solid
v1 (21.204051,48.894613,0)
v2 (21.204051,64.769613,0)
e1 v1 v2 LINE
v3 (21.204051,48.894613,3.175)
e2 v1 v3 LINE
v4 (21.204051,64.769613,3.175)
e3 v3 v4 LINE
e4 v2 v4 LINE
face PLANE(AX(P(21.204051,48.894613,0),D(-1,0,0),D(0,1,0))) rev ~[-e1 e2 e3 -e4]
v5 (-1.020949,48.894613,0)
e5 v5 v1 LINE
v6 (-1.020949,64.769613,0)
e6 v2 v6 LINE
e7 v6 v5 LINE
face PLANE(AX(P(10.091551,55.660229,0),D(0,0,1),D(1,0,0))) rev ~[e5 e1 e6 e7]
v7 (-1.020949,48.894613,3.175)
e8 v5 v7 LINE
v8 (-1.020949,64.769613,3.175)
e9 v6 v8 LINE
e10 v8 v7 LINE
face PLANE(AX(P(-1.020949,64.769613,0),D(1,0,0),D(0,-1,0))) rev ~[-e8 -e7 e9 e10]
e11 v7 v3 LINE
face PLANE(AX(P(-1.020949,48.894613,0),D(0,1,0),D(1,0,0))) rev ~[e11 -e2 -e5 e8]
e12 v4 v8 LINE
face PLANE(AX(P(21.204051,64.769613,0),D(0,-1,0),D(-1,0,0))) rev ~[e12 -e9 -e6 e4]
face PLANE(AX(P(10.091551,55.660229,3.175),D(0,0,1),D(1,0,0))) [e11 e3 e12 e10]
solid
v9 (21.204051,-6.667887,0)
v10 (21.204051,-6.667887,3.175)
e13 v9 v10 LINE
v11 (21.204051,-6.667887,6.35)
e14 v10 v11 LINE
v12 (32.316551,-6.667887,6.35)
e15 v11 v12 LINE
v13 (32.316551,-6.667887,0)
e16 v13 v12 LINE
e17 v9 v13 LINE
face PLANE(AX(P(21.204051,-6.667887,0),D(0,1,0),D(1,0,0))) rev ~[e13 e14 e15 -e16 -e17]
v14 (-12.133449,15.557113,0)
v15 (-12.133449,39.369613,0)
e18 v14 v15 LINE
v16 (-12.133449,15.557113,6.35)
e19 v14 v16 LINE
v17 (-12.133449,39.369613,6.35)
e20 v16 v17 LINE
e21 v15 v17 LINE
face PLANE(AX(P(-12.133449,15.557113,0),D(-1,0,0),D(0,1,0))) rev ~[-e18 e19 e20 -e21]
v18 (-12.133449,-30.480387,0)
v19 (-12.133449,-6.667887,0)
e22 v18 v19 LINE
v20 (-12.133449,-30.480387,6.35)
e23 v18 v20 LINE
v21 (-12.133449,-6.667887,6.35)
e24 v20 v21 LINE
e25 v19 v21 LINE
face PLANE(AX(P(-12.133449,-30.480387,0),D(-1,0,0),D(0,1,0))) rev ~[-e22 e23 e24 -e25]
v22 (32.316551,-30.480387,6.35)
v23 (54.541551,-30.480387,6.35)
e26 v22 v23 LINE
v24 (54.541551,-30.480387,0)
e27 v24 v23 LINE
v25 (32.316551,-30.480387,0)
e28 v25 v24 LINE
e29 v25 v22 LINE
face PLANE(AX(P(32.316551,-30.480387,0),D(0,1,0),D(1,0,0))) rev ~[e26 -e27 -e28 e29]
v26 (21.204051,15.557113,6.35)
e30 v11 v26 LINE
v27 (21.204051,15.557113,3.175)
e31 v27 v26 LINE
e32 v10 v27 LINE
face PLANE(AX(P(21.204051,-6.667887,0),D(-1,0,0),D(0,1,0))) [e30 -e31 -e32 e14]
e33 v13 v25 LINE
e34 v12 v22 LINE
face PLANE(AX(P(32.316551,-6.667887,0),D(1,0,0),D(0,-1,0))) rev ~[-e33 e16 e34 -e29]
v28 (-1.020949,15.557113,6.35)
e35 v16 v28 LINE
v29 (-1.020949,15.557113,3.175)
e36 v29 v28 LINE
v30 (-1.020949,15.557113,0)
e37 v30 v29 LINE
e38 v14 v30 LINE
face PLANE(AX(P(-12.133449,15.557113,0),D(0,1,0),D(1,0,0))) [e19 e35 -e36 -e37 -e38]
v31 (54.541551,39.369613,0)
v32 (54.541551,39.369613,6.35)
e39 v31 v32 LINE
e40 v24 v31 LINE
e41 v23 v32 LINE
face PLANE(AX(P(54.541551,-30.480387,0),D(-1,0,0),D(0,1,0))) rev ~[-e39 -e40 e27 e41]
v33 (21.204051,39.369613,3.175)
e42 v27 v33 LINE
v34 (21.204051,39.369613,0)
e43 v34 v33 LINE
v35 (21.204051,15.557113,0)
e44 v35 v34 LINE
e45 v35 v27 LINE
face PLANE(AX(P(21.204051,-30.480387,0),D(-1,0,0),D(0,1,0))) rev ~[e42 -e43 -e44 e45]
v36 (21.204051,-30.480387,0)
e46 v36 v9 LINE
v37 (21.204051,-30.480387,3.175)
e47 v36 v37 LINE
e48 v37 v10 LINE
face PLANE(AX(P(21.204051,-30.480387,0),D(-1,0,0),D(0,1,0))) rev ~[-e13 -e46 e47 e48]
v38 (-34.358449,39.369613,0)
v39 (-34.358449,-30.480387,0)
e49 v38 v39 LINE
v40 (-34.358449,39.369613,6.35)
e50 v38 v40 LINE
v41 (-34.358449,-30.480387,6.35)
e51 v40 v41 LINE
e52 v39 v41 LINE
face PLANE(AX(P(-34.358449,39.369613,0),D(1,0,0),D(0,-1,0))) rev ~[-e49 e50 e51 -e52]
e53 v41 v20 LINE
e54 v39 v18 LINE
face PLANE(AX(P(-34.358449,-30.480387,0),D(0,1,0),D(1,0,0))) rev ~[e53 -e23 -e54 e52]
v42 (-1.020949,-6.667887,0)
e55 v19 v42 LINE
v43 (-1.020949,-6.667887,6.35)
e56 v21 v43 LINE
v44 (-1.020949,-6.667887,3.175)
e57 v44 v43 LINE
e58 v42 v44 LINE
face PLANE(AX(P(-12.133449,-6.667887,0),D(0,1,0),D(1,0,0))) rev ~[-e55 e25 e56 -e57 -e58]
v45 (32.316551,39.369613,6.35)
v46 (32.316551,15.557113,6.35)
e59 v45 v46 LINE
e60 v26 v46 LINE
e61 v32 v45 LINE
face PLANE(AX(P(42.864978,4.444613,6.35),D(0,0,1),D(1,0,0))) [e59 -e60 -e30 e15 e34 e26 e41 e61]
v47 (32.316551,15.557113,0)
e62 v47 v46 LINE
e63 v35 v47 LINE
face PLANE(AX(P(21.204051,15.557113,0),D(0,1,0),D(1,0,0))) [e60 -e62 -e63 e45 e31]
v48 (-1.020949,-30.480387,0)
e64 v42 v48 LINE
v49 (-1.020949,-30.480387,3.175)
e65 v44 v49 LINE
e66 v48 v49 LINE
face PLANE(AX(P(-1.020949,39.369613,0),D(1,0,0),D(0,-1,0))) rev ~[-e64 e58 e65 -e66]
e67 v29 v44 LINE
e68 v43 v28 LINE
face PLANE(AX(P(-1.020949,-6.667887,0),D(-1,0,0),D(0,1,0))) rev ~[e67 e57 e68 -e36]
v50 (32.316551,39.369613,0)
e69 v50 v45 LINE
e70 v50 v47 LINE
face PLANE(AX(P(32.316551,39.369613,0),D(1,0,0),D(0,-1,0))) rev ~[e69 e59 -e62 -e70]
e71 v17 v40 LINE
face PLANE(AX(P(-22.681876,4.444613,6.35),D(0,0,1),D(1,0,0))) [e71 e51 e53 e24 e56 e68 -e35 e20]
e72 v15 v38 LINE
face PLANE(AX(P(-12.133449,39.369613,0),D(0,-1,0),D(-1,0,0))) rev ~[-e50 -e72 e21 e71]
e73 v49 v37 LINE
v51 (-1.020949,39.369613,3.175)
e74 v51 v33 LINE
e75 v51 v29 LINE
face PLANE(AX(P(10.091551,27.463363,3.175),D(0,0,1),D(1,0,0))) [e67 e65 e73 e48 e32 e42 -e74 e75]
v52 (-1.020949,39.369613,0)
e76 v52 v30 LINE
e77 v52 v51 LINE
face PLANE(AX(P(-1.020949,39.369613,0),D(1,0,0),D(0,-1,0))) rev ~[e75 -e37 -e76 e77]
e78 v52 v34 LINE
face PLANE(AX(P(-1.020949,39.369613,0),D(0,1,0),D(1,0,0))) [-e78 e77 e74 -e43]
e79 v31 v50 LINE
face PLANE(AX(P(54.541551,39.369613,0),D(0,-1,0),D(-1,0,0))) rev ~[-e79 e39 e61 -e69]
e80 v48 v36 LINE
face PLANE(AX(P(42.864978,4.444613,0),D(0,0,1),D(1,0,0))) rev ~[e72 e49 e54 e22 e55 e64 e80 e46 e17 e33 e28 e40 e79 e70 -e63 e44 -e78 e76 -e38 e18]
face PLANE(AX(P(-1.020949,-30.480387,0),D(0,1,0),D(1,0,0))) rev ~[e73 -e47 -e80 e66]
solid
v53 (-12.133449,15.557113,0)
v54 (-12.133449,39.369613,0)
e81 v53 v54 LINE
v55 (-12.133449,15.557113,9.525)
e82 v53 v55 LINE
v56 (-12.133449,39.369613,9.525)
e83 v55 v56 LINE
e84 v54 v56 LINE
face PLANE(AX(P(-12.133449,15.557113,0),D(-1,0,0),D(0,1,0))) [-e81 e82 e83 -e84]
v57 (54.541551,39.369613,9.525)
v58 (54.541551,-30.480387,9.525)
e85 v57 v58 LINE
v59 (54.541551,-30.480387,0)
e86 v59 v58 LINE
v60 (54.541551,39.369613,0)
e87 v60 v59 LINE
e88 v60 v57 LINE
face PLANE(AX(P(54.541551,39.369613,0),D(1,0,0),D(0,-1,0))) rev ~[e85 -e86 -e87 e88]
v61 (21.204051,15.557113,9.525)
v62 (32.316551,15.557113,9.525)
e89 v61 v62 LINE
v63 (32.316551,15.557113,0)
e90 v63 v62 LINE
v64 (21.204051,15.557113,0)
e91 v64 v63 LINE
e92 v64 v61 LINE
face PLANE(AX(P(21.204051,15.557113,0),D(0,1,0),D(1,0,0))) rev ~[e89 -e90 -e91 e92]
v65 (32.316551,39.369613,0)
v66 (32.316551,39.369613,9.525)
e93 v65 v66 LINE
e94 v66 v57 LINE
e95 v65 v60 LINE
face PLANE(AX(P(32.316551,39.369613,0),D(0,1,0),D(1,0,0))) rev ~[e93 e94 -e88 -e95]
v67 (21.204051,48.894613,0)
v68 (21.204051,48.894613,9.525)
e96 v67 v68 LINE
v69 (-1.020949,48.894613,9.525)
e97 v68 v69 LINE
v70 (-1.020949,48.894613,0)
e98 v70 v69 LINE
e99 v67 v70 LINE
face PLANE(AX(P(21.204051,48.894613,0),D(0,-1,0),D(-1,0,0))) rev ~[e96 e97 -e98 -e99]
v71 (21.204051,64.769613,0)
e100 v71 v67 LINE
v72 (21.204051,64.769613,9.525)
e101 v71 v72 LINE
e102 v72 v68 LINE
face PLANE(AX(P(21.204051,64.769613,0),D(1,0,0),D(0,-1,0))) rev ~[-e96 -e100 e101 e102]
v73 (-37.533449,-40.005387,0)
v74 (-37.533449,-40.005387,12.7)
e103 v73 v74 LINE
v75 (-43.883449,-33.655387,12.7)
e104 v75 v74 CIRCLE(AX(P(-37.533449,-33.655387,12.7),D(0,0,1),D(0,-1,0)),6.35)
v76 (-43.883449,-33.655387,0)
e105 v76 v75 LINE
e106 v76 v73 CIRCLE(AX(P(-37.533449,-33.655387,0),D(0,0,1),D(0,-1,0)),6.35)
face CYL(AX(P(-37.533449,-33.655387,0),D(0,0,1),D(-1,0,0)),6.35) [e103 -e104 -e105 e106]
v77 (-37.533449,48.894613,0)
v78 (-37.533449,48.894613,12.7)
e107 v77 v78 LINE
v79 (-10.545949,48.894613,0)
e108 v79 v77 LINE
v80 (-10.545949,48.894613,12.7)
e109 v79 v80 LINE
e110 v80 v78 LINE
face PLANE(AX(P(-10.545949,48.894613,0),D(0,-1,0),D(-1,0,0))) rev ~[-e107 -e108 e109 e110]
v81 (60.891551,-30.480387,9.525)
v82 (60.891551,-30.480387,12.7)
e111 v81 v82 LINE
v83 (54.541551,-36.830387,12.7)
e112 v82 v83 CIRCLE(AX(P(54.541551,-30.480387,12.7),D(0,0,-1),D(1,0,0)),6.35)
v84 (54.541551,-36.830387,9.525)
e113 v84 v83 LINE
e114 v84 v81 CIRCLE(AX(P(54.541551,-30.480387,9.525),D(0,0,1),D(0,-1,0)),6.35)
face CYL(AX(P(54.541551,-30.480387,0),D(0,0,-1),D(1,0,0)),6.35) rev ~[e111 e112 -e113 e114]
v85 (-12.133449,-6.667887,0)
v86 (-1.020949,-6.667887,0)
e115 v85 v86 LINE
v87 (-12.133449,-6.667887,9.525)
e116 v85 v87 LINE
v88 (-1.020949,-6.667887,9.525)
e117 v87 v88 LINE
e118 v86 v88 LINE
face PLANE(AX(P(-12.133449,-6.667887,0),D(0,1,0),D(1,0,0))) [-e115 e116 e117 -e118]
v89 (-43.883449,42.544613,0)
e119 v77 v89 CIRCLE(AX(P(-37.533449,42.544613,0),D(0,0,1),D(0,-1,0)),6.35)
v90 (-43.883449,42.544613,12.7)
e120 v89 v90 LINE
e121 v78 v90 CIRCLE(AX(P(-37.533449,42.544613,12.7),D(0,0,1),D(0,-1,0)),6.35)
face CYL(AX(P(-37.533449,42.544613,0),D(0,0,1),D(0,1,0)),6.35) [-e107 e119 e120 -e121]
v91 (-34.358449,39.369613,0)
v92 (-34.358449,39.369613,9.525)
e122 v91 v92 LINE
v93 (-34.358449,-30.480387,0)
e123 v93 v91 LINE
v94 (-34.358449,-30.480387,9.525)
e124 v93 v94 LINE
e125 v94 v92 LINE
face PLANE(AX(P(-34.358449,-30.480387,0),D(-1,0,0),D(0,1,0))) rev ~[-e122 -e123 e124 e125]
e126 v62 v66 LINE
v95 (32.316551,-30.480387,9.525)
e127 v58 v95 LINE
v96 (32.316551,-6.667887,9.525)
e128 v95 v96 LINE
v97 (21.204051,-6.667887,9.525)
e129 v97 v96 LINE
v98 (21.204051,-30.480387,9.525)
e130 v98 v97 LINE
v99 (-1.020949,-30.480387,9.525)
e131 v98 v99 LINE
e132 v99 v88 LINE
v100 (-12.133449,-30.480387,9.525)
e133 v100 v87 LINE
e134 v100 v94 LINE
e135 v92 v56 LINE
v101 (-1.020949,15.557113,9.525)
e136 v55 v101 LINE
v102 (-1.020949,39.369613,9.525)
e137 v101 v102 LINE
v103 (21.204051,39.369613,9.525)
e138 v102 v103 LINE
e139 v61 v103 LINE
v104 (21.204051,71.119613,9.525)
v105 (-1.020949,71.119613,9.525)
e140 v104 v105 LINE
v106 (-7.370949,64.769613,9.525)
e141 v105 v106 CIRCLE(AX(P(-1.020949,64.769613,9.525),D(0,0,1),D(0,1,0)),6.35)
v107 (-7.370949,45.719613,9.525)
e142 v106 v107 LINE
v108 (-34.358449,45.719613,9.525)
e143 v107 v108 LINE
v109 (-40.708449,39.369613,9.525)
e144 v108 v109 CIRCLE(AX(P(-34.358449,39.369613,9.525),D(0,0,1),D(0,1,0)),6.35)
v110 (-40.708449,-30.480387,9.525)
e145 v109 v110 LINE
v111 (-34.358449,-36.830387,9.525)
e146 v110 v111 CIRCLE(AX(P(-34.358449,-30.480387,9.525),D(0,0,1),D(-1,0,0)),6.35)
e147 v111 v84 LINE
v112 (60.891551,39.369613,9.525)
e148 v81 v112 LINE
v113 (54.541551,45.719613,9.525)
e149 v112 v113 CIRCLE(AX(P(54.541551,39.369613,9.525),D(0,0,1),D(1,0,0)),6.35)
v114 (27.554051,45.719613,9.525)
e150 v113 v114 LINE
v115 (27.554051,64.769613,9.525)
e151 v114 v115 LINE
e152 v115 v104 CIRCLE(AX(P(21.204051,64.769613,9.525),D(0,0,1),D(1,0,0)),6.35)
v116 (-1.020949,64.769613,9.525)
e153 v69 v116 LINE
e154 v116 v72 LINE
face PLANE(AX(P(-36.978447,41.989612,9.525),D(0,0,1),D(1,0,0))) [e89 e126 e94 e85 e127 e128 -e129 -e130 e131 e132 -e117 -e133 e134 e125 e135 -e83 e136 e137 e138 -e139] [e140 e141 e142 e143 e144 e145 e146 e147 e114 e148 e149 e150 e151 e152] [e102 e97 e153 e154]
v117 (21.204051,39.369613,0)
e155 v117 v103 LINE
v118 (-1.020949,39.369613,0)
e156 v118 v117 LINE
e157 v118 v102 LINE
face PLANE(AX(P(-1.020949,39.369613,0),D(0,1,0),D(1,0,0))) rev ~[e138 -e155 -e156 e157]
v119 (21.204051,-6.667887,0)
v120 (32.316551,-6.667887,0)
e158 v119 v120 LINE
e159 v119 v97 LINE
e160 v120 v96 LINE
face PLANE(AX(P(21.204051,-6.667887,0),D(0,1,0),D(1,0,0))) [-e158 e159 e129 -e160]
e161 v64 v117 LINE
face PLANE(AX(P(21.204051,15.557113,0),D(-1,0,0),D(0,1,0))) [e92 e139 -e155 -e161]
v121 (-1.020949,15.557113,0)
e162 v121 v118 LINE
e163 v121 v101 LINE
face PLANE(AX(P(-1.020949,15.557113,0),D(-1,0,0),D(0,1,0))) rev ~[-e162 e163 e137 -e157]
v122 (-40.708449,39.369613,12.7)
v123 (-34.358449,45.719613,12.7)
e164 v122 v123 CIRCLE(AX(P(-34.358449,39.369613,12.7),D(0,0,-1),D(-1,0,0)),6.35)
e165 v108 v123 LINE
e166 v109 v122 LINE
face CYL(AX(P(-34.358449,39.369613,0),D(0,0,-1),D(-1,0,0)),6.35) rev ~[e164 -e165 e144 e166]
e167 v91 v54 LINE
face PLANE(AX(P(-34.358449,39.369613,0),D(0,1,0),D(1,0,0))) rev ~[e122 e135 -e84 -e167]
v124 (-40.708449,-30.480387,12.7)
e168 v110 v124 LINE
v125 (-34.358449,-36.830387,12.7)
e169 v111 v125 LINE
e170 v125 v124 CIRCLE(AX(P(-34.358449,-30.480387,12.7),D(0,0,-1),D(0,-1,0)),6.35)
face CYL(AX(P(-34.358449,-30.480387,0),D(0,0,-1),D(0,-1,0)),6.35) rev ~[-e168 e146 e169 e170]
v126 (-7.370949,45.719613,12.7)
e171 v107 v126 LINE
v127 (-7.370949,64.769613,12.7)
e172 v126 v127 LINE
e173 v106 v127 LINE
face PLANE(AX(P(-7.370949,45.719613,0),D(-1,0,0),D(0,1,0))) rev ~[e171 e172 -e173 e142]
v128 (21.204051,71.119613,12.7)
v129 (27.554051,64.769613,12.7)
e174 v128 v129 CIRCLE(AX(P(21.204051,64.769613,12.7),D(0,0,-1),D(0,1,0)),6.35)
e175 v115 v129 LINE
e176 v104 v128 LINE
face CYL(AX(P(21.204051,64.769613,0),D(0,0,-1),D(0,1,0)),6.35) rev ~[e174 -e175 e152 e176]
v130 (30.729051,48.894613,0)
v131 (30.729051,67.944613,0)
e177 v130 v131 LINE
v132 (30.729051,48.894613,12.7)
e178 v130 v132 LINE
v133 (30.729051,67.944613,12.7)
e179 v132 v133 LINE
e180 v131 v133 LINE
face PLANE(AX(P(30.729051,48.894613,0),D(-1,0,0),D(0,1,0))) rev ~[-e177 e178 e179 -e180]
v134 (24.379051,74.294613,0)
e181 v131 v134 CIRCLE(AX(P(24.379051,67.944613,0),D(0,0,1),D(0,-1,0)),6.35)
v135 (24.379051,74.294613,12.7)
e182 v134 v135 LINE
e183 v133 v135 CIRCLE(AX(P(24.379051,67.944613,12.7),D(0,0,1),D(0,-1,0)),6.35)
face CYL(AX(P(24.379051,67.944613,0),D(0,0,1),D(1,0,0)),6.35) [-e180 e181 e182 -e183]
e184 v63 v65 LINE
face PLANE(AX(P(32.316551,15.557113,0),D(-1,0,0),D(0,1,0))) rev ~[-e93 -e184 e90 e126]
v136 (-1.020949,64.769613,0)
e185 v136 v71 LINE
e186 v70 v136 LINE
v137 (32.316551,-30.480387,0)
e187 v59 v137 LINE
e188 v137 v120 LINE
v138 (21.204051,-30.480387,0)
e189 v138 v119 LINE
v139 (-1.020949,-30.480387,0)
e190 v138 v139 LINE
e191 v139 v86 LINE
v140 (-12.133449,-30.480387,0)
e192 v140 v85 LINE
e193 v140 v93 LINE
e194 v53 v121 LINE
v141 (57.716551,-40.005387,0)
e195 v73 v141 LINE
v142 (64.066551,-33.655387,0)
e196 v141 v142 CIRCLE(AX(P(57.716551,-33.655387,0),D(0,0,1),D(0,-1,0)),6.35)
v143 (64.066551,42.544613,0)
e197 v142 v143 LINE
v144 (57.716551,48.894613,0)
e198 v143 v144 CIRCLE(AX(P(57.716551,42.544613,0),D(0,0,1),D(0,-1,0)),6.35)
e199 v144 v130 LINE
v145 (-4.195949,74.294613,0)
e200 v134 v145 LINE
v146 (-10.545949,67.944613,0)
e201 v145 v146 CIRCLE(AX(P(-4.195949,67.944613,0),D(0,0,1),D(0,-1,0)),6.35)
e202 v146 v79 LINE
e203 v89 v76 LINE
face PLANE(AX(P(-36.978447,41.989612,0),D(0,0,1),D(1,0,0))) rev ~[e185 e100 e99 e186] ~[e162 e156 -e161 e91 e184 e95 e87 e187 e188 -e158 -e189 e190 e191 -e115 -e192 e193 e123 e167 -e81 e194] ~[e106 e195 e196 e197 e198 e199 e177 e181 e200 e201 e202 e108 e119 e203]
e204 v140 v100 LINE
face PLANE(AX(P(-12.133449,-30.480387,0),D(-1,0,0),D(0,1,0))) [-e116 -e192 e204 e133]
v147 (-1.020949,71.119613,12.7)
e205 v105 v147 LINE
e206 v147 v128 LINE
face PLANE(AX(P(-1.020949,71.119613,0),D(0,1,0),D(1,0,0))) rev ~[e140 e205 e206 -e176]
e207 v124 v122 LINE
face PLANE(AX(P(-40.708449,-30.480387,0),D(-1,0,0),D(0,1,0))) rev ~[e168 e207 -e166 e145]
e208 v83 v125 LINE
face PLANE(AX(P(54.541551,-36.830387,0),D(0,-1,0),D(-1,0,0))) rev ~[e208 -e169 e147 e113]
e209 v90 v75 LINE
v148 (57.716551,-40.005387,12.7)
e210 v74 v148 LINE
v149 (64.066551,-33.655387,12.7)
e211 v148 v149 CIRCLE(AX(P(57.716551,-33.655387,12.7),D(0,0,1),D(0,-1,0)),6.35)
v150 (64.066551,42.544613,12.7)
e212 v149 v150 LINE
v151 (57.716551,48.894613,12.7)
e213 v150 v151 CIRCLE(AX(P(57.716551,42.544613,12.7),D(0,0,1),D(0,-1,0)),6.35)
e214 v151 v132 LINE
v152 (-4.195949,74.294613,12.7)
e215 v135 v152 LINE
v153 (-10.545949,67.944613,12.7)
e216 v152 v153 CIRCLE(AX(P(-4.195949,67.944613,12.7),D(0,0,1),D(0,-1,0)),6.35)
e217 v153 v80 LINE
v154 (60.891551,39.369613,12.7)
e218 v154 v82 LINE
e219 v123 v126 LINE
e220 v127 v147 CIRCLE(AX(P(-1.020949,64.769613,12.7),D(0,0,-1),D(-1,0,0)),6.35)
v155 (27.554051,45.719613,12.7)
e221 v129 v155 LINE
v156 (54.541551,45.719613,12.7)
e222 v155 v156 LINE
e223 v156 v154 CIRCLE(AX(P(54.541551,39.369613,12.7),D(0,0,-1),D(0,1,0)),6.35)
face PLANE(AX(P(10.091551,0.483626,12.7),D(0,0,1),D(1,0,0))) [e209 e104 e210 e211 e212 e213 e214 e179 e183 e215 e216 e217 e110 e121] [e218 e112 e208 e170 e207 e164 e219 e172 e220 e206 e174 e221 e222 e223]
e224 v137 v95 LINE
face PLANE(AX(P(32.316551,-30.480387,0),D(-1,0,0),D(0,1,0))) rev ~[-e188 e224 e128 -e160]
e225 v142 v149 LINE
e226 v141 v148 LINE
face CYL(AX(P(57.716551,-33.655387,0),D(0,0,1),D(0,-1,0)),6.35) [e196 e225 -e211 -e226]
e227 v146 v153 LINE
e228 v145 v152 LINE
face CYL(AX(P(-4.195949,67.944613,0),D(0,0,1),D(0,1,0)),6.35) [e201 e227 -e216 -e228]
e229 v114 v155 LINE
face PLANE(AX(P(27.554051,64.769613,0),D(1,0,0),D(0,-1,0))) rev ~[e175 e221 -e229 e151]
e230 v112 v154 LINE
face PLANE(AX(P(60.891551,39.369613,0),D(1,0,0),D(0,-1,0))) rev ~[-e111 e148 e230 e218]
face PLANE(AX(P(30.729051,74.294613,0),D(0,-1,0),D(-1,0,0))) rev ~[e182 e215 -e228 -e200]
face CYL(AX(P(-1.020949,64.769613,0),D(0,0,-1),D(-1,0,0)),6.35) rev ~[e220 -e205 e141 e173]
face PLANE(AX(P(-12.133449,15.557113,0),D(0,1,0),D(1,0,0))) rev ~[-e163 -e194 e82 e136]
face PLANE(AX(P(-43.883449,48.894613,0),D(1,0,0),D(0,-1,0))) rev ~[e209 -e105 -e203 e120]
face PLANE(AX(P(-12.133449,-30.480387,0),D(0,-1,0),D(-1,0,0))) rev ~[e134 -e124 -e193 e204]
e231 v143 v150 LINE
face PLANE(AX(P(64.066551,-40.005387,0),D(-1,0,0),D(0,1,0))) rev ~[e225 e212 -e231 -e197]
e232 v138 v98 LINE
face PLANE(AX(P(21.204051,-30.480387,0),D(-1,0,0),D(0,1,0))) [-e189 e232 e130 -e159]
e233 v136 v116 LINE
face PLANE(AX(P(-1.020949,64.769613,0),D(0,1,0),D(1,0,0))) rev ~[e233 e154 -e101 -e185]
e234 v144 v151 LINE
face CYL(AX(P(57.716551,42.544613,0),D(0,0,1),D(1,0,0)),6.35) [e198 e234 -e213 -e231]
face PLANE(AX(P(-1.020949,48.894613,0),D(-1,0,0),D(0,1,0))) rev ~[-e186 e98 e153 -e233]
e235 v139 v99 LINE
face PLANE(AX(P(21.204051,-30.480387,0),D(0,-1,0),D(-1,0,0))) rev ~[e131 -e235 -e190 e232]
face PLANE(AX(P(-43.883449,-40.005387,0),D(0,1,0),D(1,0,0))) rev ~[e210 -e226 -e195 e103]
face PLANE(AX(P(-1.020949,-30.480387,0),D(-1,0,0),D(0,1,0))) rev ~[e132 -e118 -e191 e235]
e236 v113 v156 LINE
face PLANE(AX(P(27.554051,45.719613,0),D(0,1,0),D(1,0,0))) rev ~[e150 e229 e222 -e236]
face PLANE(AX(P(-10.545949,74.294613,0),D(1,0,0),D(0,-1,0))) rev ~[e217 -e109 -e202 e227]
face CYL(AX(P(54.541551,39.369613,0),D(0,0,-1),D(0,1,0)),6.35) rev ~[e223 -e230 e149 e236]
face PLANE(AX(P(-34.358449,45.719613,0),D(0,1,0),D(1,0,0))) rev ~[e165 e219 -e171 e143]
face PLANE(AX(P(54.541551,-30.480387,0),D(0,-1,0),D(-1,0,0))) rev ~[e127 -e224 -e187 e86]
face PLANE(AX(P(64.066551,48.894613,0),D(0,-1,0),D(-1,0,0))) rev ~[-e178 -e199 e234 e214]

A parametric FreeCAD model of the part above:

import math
import FreeCAD as App
import Part
import Sketcher
from FreeCAD import Vector
Q = App.Units.Quantity


def edges_at(feature, points):
    """Names of the edges that pass closest to the given points."""
    edges = feature.Shape.Edges
    near = lambda p: min(range(len(edges)), key=lambda i: edges[i].distToShape(Part.Vertex(*p))[0])
    return sorted({f"Edge{near(p) + 1}" for p in points})

doc = App.newDocument("Part")
params = doc.addObject("Spreadsheet::Sheet", "Params")
for row, (alias, value) in enumerate([
    ("sketch1_height", "2.75 in"),
    ("sketch1_width", "0.875 in"),
    ("pad1_length", "0.125 in"),
    ("sketch2_height", "2.75 in"),
    ("sketch2_width", "0.4375 in"),
    ("sketch2_width2", "0.875 in"),
    ("pad2_length", "0.25 in"),
    ("sketch3_width", "0.875 in"),
    ("sketch3_height", "0.625 in"),
    ("pad3_length", "0.125 in"),
    ("sketch4_radius", "0.25 in"),
    ("sketch4_width", "3.5 in"),
    ("sketch4_width2", "1.0625 in"),
    ("sketch4_height", "0.625 in"),
    ("sketch4_height2", "0.9375 in"),
    ("pad4_length", "0.375 in"),
    ("sketch5_height", "1 in"),
    ("sketch5_radius", "0.25 in"),
    ("sketch5_width", "3.5 in"),
    ("sketch5_width2", "4.25 in"),
    ("sketch5_width3", "1.3125 in"),
    ("pad5_length", "0.5 in"),
    ("fillet_radius", "0.25 in"),
], start=1):
    params.set(f"A{row}", alias)
    params.set(f"B{row}", "=" + value)
    params.setAlias(f"B{row}", alias)

body = doc.addObject("PartDesign::Body", "Body")

sketch1 = doc.addObject("Sketcher::SketchObject", "Sketch")
body.addObject(sketch1)
sketch1.AttachmentSupport = (doc.XY_Plane, [""])
sketch1.MapMode = "FlatFace"
sketch1.addGeometry([
    Part.LineSegment(Vector(-1, 39, 0), Vector(-1, -30, 0)),
    Part.LineSegment(Vector(-1, -30, 0), Vector(21, -30, 0)),
    Part.LineSegment(Vector(21, -30, 0), Vector(21, 39, 0)),
    Part.LineSegment(Vector(21, 39, 0), Vector(-1, 39, 0)),
], False)
sketch1.addConstraint([
    Sketcher.Constraint("Coincident", 0, 2, 1, 1),
    Sketcher.Constraint("Coincident", 1, 2, 2, 1),
    Sketcher.Constraint("Coincident", 2, 2, 3, 1),
    Sketcher.Constraint("Coincident", 3, 2, 0, 1),
    Sketcher.Constraint("Vertical", 0),
    Sketcher.Constraint("Horizontal", 1),
    Sketcher.Constraint("Vertical", 2),
    Sketcher.Constraint("Horizontal", 3),
    Sketcher.Constraint("DistanceY", 0, 2, 0, 1, Q("2.75 in")),
    Sketcher.Constraint("DistanceX", 1, 1, 1, 2, Q("0.875 in")),
    Sketcher.Constraint("DistanceX", 0, 2, -1, 1, Q("1.020949 mm")),
    Sketcher.Constraint("DistanceY", 0, 2, -1, 1, Q("30.480387 mm")),
])
sketch1.setExpression("Constraints[8]", "Params.sketch1_height")
sketch1.setExpression("Constraints[9]", "Params.sketch1_width")
pad1 = doc.addObject("PartDesign::Pad", "Pad")
body.addObject(pad1)
pad1.Profile = sketch1
pad1.setExpression("Length", "Params.pad1_length")

sketch2 = doc.addObject("Sketcher::SketchObject", "Sketch001")
body.addObject(sketch2)
sketch2.AttachmentSupport = (doc.XY_Plane, [""])
sketch2.MapMode = "FlatFace"
sketch2.addGeometry([
    Part.LineSegment(Vector(32, 39, 0), Vector(32, 16, 0)),
    Part.LineSegment(Vector(32, 16, 0), Vector(21, 16, 0)),
    Part.LineSegment(Vector(21, 16, 0), Vector(21, -7, 0)),
    Part.LineSegment(Vector(21, -7, 0), Vector(32, -7, 0)),
    Part.LineSegment(Vector(32, -7, 0), Vector(32, -30, 0)),
    Part.LineSegment(Vector(32, -30, 0), Vector(55, -30, 0)),
    Part.LineSegment(Vector(55, -30, 0), Vector(55, 39, 0)),
    Part.LineSegment(Vector(55, 39, 0), Vector(32, 39, 0)),
    Part.LineSegment(Vector(-12, 39, 0), Vector(-34, 39, 0)),
    Part.LineSegment(Vector(-34, 39, 0), Vector(-34, -30, 0)),
    Part.LineSegment(Vector(-34, -30, 0), Vector(-12, -30, 0)),
    Part.LineSegment(Vector(-12, -30, 0), Vector(-12, -7, 0)),
    Part.LineSegment(Vector(-12, -7, 0), Vector(-1, -7, 0)),
    Part.LineSegment(Vector(-1, -7, 0), Vector(-1, 16, 0)),
    Part.LineSegment(Vector(-1, 16, 0), Vector(-12, 16, 0)),
    Part.LineSegment(Vector(-12, 16, 0), Vector(-12, 39, 0)),
], False)
sketch2.addConstraint([
    Sketcher.Constraint("Coincident", 0, 2, 1, 1),
    Sketcher.Constraint("Coincident", 1, 2, 2, 1),
    Sketcher.Constraint("Coincident", 2, 2, 3, 1),
    Sketcher.Constraint("Coincident", 3, 2, 4, 1),
    Sketcher.Constraint("Coincident", 4, 2, 5, 1),
    Sketcher.Constraint("Coincident", 5, 2, 6, 1),
    Sketcher.Constraint("Coincident", 6, 2, 7, 1),
    Sketcher.Constraint("Coincident", 7, 2, 0, 1),
    Sketcher.Constraint("Coincident", 8, 2, 9, 1),
    Sketcher.Constraint("Coincident", 9, 2, 10, 1),
    Sketcher.Constraint("Coincident", 10, 2, 11, 1),
    Sketcher.Constraint("Coincident", 11, 2, 12, 1),
    Sketcher.Constraint("Coincident", 12, 2, 13, 1),
    Sketcher.Constraint("Coincident", 13, 2, 14, 1),
    Sketcher.Constraint("Coincident", 14, 2, 15, 1),
    Sketcher.Constraint("Coincident", 15, 2, 8, 1),
    Sketcher.Constraint("Vertical", 0),
    Sketcher.Constraint("Horizontal", 1),
    Sketcher.Constraint("Vertical", 2),
    Sketcher.Constraint("Horizontal", 3),
    Sketcher.Constraint("Vertical", 4),
    Sketcher.Constraint("Horizontal", 5),
    Sketcher.Constraint("Vertical", 6),
    Sketcher.Constraint("Horizontal", 7),
    Sketcher.Constraint("Horizontal", 8),
    Sketcher.Constraint("Vertical", 9),
    Sketcher.Constraint("Horizontal", 10),
    Sketcher.Constraint("Vertical", 11),
    Sketcher.Constraint("Horizontal", 12),
    Sketcher.Constraint("Vertical", 13),
    Sketcher.Constraint("Horizontal", 14),
    Sketcher.Constraint("Vertical", 15),
    Sketcher.Constraint("Horizontal", 7, 2, 8, 2),
    Sketcher.Constraint("Horizontal", 5, 2, 9, 2),
    Sketcher.Constraint("Horizontal", 3, 2, 11, 2),
    Sketcher.Constraint("Horizontal", 1, 2, 13, 2),
    Sketcher.Constraint("Vertical", 0, 2, 3, 2),
    Sketcher.Constraint("Vertical", 11, 2, 14, 2),
    Sketcher.Constraint("Equal", 7, 8),
    Sketcher.Constraint("Equal", 3, 12),
    Sketcher.Constraint("Equal", 10, 2),
    Sketcher.Constraint("Equal", 0, 4),
    Sketcher.Constraint("DistanceY", 6, 1, 6, 2, Q("2.75 in")),
    Sketcher.Constraint("DistanceX", 1, 2, 1, 1, Q("0.4375 in")),
    Sketcher.Constraint("DistanceX", 5, 1, 5, 2, Q("0.875 in")),
    Sketcher.Constraint("DistanceX", 10, 2, 4, 2, Q("1.75 in")),
    Sketcher.Constraint("DistanceX", -1, 1, 0, 2, Q("32.316551 mm")),
    Sketcher.Constraint("DistanceY", -1, 1, 0, 2, Q("15.557113 mm")),
])
sketch2.setExpression("Constraints[42]", "Params.sketch2_height")
sketch2.setExpression("Constraints[43]", "Params.sketch2_width")
sketch2.setExpression("Constraints[44]", "Params.sketch2_width2")
pad2 = doc.addObject("PartDesign::Pad", "Pad001")
body.addObject(pad2)
pad2.Profile = sketch2
pad2.setExpression("Length", "Params.pad2_length")
body2 = doc.addObject("PartDesign::Body", "Body001")

sketch3 = doc.addObject("Sketcher::SketchObject", "Sketch002")
body2.addObject(sketch3)
sketch3.AttachmentSupport = (doc.getObject("XY_Plane001"), [""])
sketch3.MapMode = "FlatFace"
sketch3.addGeometry([
    Part.LineSegment(Vector(-1, 49, 0), Vector(21, 49, 0)),
    Part.LineSegment(Vector(21, 49, 0), Vector(21, 65, 0)),
    Part.LineSegment(Vector(21, 65, 0), Vector(-1, 65, 0)),
    Part.LineSegment(Vector(-1, 65, 0), Vector(-1, 49, 0)),
], False)
sketch3.addConstraint([
    Sketcher.Constraint("Coincident", 0, 2, 1, 1),
    Sketcher.Constraint("Coincident", 1, 2, 2, 1),
    Sketcher.Constraint("Coincident", 2, 2, 3, 1),
    Sketcher.Constraint("Coincident", 3, 2, 0, 1),
    Sketcher.Constraint("Horizontal", 0),
    Sketcher.Constraint("Vertical", 1),
    Sketcher.Constraint("Horizontal", 2),
    Sketcher.Constraint("Vertical", 3),
    Sketcher.Constraint("DistanceX", 0, 1, 0, 2, Q("0.875 in")),
    Sketcher.Constraint("DistanceY", 1, 1, 1, 2, Q("0.625 in")),
    Sketcher.Constraint("DistanceX", -1, 1, 0, 2, Q("21.204051 mm")),
    Sketcher.Constraint("DistanceY", -1, 1, 0, 2, Q("48.894613 mm")),
])
sketch3.setExpression("Constraints[8]", "Params.sketch3_width")
sketch3.setExpression("Constraints[9]", "Params.sketch3_height")
pad3 = doc.addObject("PartDesign::Pad", "Pad002")
body2.addObject(pad3)
pad3.Profile = sketch3
pad3.setExpression("Length", "Params.pad3_length")
body3 = doc.addObject("PartDesign::Body", "Body002")

sketch4 = doc.addObject("Sketcher::SketchObject", "Sketch003")
body3.addObject(sketch4)
sketch4.AttachmentSupport = (doc.getObject("XY_Plane002"), [""])
sketch4.MapMode = "FlatFace"
sketch4.addGeometry([
    Part.ArcOfCircle(Part.Circle(Vector(-34, 39, 0), Vector(0, 0, 1), 6), math.radians(90), math.radians(180)),
    Part.LineSegment(Vector(-41, 39, 0), Vector(-41, -30, 0)),
    Part.ArcOfCircle(Part.Circle(Vector(-34, -30, 0), Vector(0, 0, 1), 6), math.radians(-180), math.radians(-90)),
    Part.LineSegment(Vector(-34, -37, 0), Vector(55, -37, 0)),
    Part.ArcOfCircle(Part.Circle(Vector(55, -30, 0), Vector(0, 0, 1), 6), math.radians(-90), math.radians(0)),
    Part.LineSegment(Vector(61, -30, 0), Vector(61, 39, 0)),
    Part.ArcOfCircle(Part.Circle(Vector(55, 39, 0), Vector(0, 0, 1), 6), math.radians(0), math.radians(90)),
    Part.LineSegment(Vector(55, 46, 0), Vector(28, 46, 0)),
    Part.LineSegment(Vector(28, 46, 0), Vector(28, 65, 0)),
    Part.ArcOfCircle(Part.Circle(Vector(21, 65, 0), Vector(0, 0, 1), 6), math.radians(0), math.radians(90)),
    Part.LineSegment(Vector(21, 71, 0), Vector(-1, 71, 0)),
    Part.ArcOfCircle(Part.Circle(Vector(-1, 65, 0), Vector(0, 0, 1), 6), math.radians(90), math.radians(180)),
    Part.LineSegment(Vector(-7, 65, 0), Vector(-7, 46, 0)),
    Part.LineSegment(Vector(-7, 46, 0), Vector(-34, 46, 0)),
    Part.LineSegment(Vector(-1, 65, 0), Vector(21, 65, 0)),
    Part.LineSegment(Vector(21, 65, 0), Vector(21, 49, 0)),
    Part.LineSegment(Vector(21, 49, 0), Vector(-1, 49, 0)),
    Part.LineSegment(Vector(-1, 49, 0), Vector(-1, 65, 0)),
    Part.LineSegment(Vector(-34, -30, 0), Vector(-34, 39, 0)),
    Part.LineSegment(Vector(-34, 39, 0), Vector(-12, 39, 0)),
    Part.LineSegment(Vector(-12, 39, 0), Vector(-12, 16, 0)),
    Part.LineSegment(Vector(-12, 16, 0), Vector(-1, 16, 0)),
    Part.LineSegment(Vector(-1, 16, 0), Vector(-1, 39, 0)),
    Part.LineSegment(Vector(-1, 39, 0), Vector(21, 39, 0)),
    Part.LineSegment(Vector(21, 39, 0), Vector(21, 16, 0)),
    Part.LineSegment(Vector(21, 16, 0), Vector(32, 16, 0)),
    Part.LineSegment(Vector(32, 16, 0), Vector(32, 39, 0)),
    Part.LineSegment(Vector(32, 39, 0), Vector(55, 39, 0)),
    Part.LineSegment(Vector(55, 39, 0), Vector(55, -30, 0)),
    Part.LineSegment(Vector(55, -30, 0), Vector(32, -30, 0)),
    Part.LineSegment(Vector(32, -30, 0), Vector(32, -7, 0)),
    Part.LineSegment(Vector(32, -7, 0), Vector(21, -7, 0)),
    Part.LineSegment(Vector(21, -7, 0), Vector(21, -30, 0)),
    Part.LineSegment(Vector(21, -30, 0), Vector(-1, -30, 0)),
    Part.LineSegment(Vector(-1, -30, 0), Vector(-1, -7, 0)),
    Part.LineSegment(Vector(-1, -7, 0), Vector(-12, -7, 0)),
    Part.LineSegment(Vector(-12, -7, 0), Vector(-12, -30, 0)),
    Part.LineSegment(Vector(-12, -30, 0), Vector(-34, -30, 0)),
], False)
sketch4.addConstraint([
    Sketcher.Constraint("Tangent", 0, 2, 1, 1),
    Sketcher.Constraint("Tangent", 1, 2, 2, 1),
    Sketcher.Constraint("Tangent", 2, 2, 3, 1),
    Sketcher.Constraint("Tangent", 3, 2, 4, 1),
    Sketcher.Constraint("Tangent", 4, 2, 5, 1),
    Sketcher.Constraint("Tangent", 5, 2, 6, 1),
    Sketcher.Constraint("Tangent", 6, 2, 7, 1),
    Sketcher.Constraint("Coincident", 7, 2, 8, 1),
    Sketcher.Constraint("Tangent", 8, 2, 9, 1),
    Sketcher.Constraint("Tangent", 9, 2, 10, 1),
    Sketcher.Constraint("Tangent", 10, 2, 11, 1),
    Sketcher.Constraint("Tangent", 11, 2, 12, 1),
    Sketcher.Constraint("Coincident", 12, 2, 13, 1),
    Sketcher.Constraint("Tangent", 13, 2, 0, 1),
    Sketcher.Constraint("Coincident", 14, 2, 15, 1),
    Sketcher.Constraint("Coincident", 15, 2, 16, 1),
    Sketcher.Constraint("Coincident", 16, 2, 17, 1),
    Sketcher.Constraint("Coincident", 17, 2, 14, 1),
    Sketcher.Constraint("Coincident", 18, 2, 19, 1),
    Sketcher.Constraint("Coincident", 19, 2, 20, 1),
    Sketcher.Constraint("Coincident", 20, 2, 21, 1),
    Sketcher.Constraint("Coincident", 21, 2, 22, 1),
    Sketcher.Constraint("Coincident", 22, 2, 23, 1),
    Sketcher.Constraint("Coincident", 23, 2, 24, 1),
    Sketcher.Constraint("Coincident", 24, 2, 25, 1),
    Sketcher.Constraint("Coincident", 25, 2, 26, 1),
    Sketcher.Constraint("Coincident", 26, 2, 27, 1),
    Sketcher.Constraint("Coincident", 27, 2, 28, 1),
    Sketcher.Constraint("Coincident", 28, 2, 29, 1),
    Sketcher.Constraint("Coincident", 29, 2, 30, 1),
    Sketcher.Constraint("Coincident", 30, 2, 31, 1),
    Sketcher.Constraint("Coincident", 31, 2, 32, 1),
    Sketcher.Constraint("Coincident", 32, 2, 33, 1),
    Sketcher.Constraint("Coincident", 33, 2, 34, 1),
    Sketcher.Constraint("Coincident", 34, 2, 35, 1),
    Sketcher.Constraint("Coincident", 35, 2, 36, 1),
    Sketcher.Constraint("Coincident", 36, 2, 37, 1),
    Sketcher.Constraint("Coincident", 37, 2, 18, 1),
    Sketcher.Constraint("Vertical", 1),
    Sketcher.Constraint("Horizontal", 3),
    Sketcher.Constraint("Vertical", 5),
    Sketcher.Constraint("Horizontal", 7),
    Sketcher.Constraint("Vertical", 8),
    Sketcher.Constraint("Horizontal", 10),
    Sketcher.Constraint("Vertical", 12),
    Sketcher.Constraint("Horizontal", 13),
    Sketcher.Constraint("Horizontal", 14),
    Sketcher.Constraint("Vertical", 15),
    Sketcher.Constraint("Horizontal", 16),
    Sketcher.Constraint("Vertical", 17),
    Sketcher.Constraint("Vertical", 18),
    Sketcher.Constraint("Horizontal", 19),
    Sketcher.Constraint("Vertical", 20),
    Sketcher.Constraint("Horizontal", 21),
    Sketcher.Constraint("Vertical", 22),
    Sketcher.Constraint("Horizontal", 23),
    Sketcher.Constraint("Vertical", 24),
    Sketcher.Constraint("Horizontal", 25),
    Sketcher.Constraint("Vertical", 26),
    Sketcher.Constraint("Horizontal", 27),
    Sketcher.Constraint("Vertical", 28),
    Sketcher.Constraint("Horizontal", 29),
    Sketcher.Constraint("Vertical", 30),
    Sketcher.Constraint("Horizontal", 31),
    Sketcher.Constraint("Vertical", 32),
    Sketcher.Constraint("Horizontal", 33),
    Sketcher.Constraint("Vertical", 34),
    Sketcher.Constraint("Horizontal", 35),
    Sketcher.Constraint("Vertical", 36),
    Sketcher.Constraint("Horizontal", 37),
    Sketcher.Constraint("Coincident", 14, 2, 9, 3),
    Sketcher.Constraint("Coincident", 17, 2, 11, 3),
    Sketcher.Constraint("Coincident", 18, 2, 0, 3),
    Sketcher.Constraint("Coincident", 27, 2, 6, 3),
    Sketcher.Constraint("Coincident", 28, 2, 4, 3),
    Sketcher.Constraint("Coincident", 37, 2, 2, 3),
    Sketcher.Constraint("Equal", 2, 4),
    Sketcher.Constraint("Equal", 6, 9),
    Sketcher.Constraint("Horizontal", 0, 3, 6, 3),
    Sketcher.Constraint("Horizontal", 19, 2, 22, 2),
    Sketcher.Constraint("Horizontal", 21, 2, 24, 2),
    Sketcher.Constraint("Horizontal", 29, 2, 32, 2),
    Sketcher.Constraint("Horizontal", 31, 2, 34, 2),
    Sketcher.Constraint("Vertical", 17, 2, 21, 2),
    Sketcher.Constraint("Vertical", 15, 2, 23, 2),
    Sketcher.Constraint("Vertical", 26, 2, 29, 2),
    Sketcher.Constraint("Vertical", 24, 2, 31, 2),
    Sketcher.Constraint("Vertical", 22, 2, 33, 2),
    Sketcher.Constraint("Vertical", 20, 2, 35, 2),
    Sketcher.Constraint("Equal", 7, 13),
    Sketcher.Constraint("Equal", 16, 19),
    Sketcher.Constraint("Equal", 21, 25),
    Sketcher.Constraint("Equal", 26, 30),
    Sketcher.Constraint("Radius", 0, Q("0.25 in")),
    Sketcher.Constraint("DistanceX", 3, 1, 3, 2, Q("3.5 in")),
    Sketcher.Constraint("DistanceY", 6, 3, 9, 3, Q("1 in")),
    Sketcher.Constraint("DistanceY", 2, 2, 0, 3, Q("3 in")),
    Sketcher.Constraint("DistanceX", 7, 2, 7, 1, Q("1.0625 in")),
    Sketcher.Constraint("DistanceY", 15, 2, 15, 1, Q("0.625 in")),
    Sketcher.Constraint("DistanceY", 20, 2, 20, 1, Q("0.9375 in")),
    Sketcher.Constraint("DistanceX", 0, 3, -1, 1, Q("34.358449 mm")),
    Sketcher.Constraint("DistanceY", -1, 1, 0, 3, Q("39.369613 mm")),
])
sketch4.setExpression("Constraints[93]", "Params.sketch4_radius")
sketch4.setExpression("Constraints[94]", "Params.sketch4_width")
sketch4.setExpression("Constraints[97]", "Params.sketch4_width2")
sketch4.setExpression("Constraints[98]", "Params.sketch4_height")
sketch4.setExpression("Constraints[99]", "Params.sketch4_height2")
pad4 = doc.addObject("PartDesign::Pad", "Pad003")
body3.addObject(pad4)
pad4.Profile = sketch4
pad4.setExpression("Length", "Params.pad4_length")

sketch5 = doc.addObject("Sketcher::SketchObject", "Sketch004")
body3.addObject(sketch5)
sketch5.AttachmentSupport = (doc.getObject("XY_Plane002"), [""])
sketch5.MapMode = "FlatFace"
sketch5.addGeometry([
    Part.LineSegment(Vector(-11, 49, 0), Vector(-44, 49, 0)),
    Part.LineSegment(Vector(-44, 49, 0), Vector(-44, -40, 0)),
    Part.LineSegment(Vector(-44, -40, 0), Vector(64, -40, 0)),
    Part.LineSegment(Vector(64, -40, 0), Vector(64, 49, 0)),
    Part.LineSegment(Vector(64, 49, 0), Vector(31, 49, 0)),
    Part.LineSegment(Vector(31, 49, 0), Vector(31, 74, 0)),
    Part.LineSegment(Vector(31, 74, 0), Vector(-11, 74, 0)),
    Part.LineSegment(Vector(-11, 74, 0), Vector(-11, 49, 0)),
    Part.ArcOfCircle(Part.Circle(Vector(-34, 39, 0), Vector(0, 0, 1), 6), math.radians(90), math.radians(180)),
    Part.LineSegment(Vector(-34, 46, 0), Vector(-7, 46, 0)),
    Part.LineSegment(Vector(-7, 46, 0), Vector(-7, 65, 0)),
    Part.ArcOfCircle(Part.Circle(Vector(-1, 65, 0), Vector(0, 0, 1), 6), math.radians(90), math.radians(180)),
    Part.LineSegment(Vector(-1, 71, 0), Vector(21, 71, 0)),
    Part.ArcOfCircle(Part.Circle(Vector(21, 65, 0), Vector(0, 0, 1), 6), math.radians(0), math.radians(90)),
    Part.LineSegment(Vector(28, 65, 0), Vector(28, 46, 0)),
    Part.LineSegment(Vector(28, 46, 0), Vector(55, 46, 0)),
    Part.ArcOfCircle(Part.Circle(Vector(55, 39, 0), Vector(0, 0, 1), 6), math.radians(0), math.radians(90)),
    Part.LineSegment(Vector(61, 39, 0), Vector(61, -30, 0)),
    Part.ArcOfCircle(Part.Circle(Vector(55, -30, 0), Vector(0, 0, 1), 6), math.radians(-90), math.radians(0)),
    Part.LineSegment(Vector(55, -37, 0), Vector(-34, -37, 0)),
    Part.ArcOfCircle(Part.Circle(Vector(-34, -30, 0), Vector(0, 0, 1), 6), math.radians(-180), math.radians(-90)),
    Part.LineSegment(Vector(-41, -30, 0), Vector(-41, 39, 0)),
], False)
sketch5.addConstraint([
    Sketcher.Constraint("Coincident", 0, 2, 1, 1),
    Sketcher.Constraint("Coincident", 1, 2, 2, 1),
    Sketcher.Constraint("Coincident", 2, 2, 3, 1),
    Sketcher.Constraint("Coincident", 3, 2, 4, 1),
    Sketcher.Constraint("Coincident", 4, 2, 5, 1),
    Sketcher.Constraint("Coincident", 5, 2, 6, 1),
    Sketcher.Constraint("Coincident", 6, 2, 7, 1),
    Sketcher.Constraint("Coincident", 7, 2, 0, 1),
    Sketcher.Constraint("Tangent", 8, 1, 9, 1),
    Sketcher.Constraint("Coincident", 9, 2, 10, 1),
    Sketcher.Constraint("Tangent", 10, 2, 11, 2),
    Sketcher.Constraint("Tangent", 11, 1, 12, 1),
    Sketcher.Constraint("Tangent", 12, 2, 13, 2),
    Sketcher.Constraint("Tangent", 13, 1, 14, 1),
    Sketcher.Constraint("Coincident", 14, 2, 15, 1),
    Sketcher.Constraint("Tangent", 15, 2, 16, 2),
    Sketcher.Constraint("Tangent", 16, 1, 17, 1),
    Sketcher.Constraint("Tangent", 17, 2, 18, 2),
    Sketcher.Constraint("Tangent", 18, 1, 19, 1),
    Sketcher.Constraint("Tangent", 19, 2, 20, 2),
    Sketcher.Constraint("Tangent", 20, 1, 21, 1),
    Sketcher.Constraint("Tangent", 21, 2, 8, 2),
    Sketcher.Constraint("Horizontal", 0),
    Sketcher.Constraint("Vertical", 1),
    Sketcher.Constraint("Horizontal", 2),
    Sketcher.Constraint("Vertical", 3),
    Sketcher.Constraint("Horizontal", 4),
    Sketcher.Constraint("Vertical", 5),
    Sketcher.Constraint("Horizontal", 6),
    Sketcher.Constraint("Vertical", 7),
    Sketcher.Constraint("Horizontal", 9),
    Sketcher.Constraint("Vertical", 10),
    Sketcher.Constraint("Horizontal", 12),
    Sketcher.Constraint("Vertical", 14),
    Sketcher.Constraint("Horizontal", 15),
    Sketcher.Constraint("Vertical", 17),
    Sketcher.Constraint("Horizontal", 19),
    Sketcher.Constraint("Vertical", 21),
    Sketcher.Constraint("Equal", 8, 11),
    Sketcher.Constraint("Equal", 11, 13),
    Sketcher.Constraint("Equal", 13, 16),
    Sketcher.Constraint("Equal", 16, 18),
    Sketcher.Constraint("Equal", 18, 20),
    Sketcher.Constraint("Horizontal", 8, 3, 16, 3),
    Sketcher.Constraint("Horizontal", 0, 2, 3, 2),
    Sketcher.Constraint("Equal", 0, 4),
    Sketcher.Constraint("Equal", 9, 15),
    Sketcher.Constraint("Equal", 19, 1),
    Sketcher.Constraint("DistanceY", 5, 1, 5, 2, Q("1 in")),
    Sketcher.Constraint("Radius", 8, Q("0.25 in")),
    Sketcher.Constraint("DistanceX", 19, 2, 19, 1, Q("3.5 in")),
    Sketcher.Constraint("DistanceY", 8, 3, 11, 3, Q("1 in")),
    Sketcher.Constraint("DistanceY", 17, 2, 15, 2, Q("3 in")),
    Sketcher.Constraint("DistanceX", 2, 1, 2, 2, Q("4.25 in")),
    Sketcher.Constraint("DistanceX", 0, 2, 0, 1, Q("1.3125 in")),
    Sketcher.Constraint("DistanceX", 9, 1, 9, 2, Q("1.0625 in")),
    Sketcher.Constraint("DistanceX", 11, 3, 4, 2, Q("1.25 in")),
    Sketcher.Constraint("DistanceY", 8, 3, 0, 2, Q("0.375 in")),
    Sketcher.Constraint("DistanceX", 8, 3, -1, 1, Q("34.358449 mm")),
    Sketcher.Constraint("DistanceY", -1, 1, 8, 3, Q("39.369613 mm")),
])
sketch5.setExpression("Constraints[48]", "Params.sketch5_height")
sketch5.setExpression("Constraints[49]", "Params.sketch5_radius")
sketch5.setExpression("Constraints[50]", "Params.sketch5_width")
sketch5.setExpression("Constraints[53]", "Params.sketch5_width2")
sketch5.setExpression("Constraints[54]", "Params.sketch5_width3")
pad5 = doc.addObject("PartDesign::Pad", "Pad004")
body3.addObject(pad5)
pad5.Profile = sketch5
pad5.setExpression("Length", "Params.pad5_length")
doc.recompute()

fillet = doc.addObject("PartDesign::Fillet", "Fillet")
body3.addObject(fillet)
fillet.Base = (pad5, edges_at(pad5, [
    (-43.883, 48.895, 6.35),
    (64.067, 48.895, 6.35),
    (64.067, -40.005, 6.35),
    (-43.883, -40.005, 6.35),
    (-10.546, 74.295, 6.35),
    (30.729, 74.295, 6.35),
]))
fillet.setExpression("Radius", "Params.fillet_radius")

doc.recompute()
